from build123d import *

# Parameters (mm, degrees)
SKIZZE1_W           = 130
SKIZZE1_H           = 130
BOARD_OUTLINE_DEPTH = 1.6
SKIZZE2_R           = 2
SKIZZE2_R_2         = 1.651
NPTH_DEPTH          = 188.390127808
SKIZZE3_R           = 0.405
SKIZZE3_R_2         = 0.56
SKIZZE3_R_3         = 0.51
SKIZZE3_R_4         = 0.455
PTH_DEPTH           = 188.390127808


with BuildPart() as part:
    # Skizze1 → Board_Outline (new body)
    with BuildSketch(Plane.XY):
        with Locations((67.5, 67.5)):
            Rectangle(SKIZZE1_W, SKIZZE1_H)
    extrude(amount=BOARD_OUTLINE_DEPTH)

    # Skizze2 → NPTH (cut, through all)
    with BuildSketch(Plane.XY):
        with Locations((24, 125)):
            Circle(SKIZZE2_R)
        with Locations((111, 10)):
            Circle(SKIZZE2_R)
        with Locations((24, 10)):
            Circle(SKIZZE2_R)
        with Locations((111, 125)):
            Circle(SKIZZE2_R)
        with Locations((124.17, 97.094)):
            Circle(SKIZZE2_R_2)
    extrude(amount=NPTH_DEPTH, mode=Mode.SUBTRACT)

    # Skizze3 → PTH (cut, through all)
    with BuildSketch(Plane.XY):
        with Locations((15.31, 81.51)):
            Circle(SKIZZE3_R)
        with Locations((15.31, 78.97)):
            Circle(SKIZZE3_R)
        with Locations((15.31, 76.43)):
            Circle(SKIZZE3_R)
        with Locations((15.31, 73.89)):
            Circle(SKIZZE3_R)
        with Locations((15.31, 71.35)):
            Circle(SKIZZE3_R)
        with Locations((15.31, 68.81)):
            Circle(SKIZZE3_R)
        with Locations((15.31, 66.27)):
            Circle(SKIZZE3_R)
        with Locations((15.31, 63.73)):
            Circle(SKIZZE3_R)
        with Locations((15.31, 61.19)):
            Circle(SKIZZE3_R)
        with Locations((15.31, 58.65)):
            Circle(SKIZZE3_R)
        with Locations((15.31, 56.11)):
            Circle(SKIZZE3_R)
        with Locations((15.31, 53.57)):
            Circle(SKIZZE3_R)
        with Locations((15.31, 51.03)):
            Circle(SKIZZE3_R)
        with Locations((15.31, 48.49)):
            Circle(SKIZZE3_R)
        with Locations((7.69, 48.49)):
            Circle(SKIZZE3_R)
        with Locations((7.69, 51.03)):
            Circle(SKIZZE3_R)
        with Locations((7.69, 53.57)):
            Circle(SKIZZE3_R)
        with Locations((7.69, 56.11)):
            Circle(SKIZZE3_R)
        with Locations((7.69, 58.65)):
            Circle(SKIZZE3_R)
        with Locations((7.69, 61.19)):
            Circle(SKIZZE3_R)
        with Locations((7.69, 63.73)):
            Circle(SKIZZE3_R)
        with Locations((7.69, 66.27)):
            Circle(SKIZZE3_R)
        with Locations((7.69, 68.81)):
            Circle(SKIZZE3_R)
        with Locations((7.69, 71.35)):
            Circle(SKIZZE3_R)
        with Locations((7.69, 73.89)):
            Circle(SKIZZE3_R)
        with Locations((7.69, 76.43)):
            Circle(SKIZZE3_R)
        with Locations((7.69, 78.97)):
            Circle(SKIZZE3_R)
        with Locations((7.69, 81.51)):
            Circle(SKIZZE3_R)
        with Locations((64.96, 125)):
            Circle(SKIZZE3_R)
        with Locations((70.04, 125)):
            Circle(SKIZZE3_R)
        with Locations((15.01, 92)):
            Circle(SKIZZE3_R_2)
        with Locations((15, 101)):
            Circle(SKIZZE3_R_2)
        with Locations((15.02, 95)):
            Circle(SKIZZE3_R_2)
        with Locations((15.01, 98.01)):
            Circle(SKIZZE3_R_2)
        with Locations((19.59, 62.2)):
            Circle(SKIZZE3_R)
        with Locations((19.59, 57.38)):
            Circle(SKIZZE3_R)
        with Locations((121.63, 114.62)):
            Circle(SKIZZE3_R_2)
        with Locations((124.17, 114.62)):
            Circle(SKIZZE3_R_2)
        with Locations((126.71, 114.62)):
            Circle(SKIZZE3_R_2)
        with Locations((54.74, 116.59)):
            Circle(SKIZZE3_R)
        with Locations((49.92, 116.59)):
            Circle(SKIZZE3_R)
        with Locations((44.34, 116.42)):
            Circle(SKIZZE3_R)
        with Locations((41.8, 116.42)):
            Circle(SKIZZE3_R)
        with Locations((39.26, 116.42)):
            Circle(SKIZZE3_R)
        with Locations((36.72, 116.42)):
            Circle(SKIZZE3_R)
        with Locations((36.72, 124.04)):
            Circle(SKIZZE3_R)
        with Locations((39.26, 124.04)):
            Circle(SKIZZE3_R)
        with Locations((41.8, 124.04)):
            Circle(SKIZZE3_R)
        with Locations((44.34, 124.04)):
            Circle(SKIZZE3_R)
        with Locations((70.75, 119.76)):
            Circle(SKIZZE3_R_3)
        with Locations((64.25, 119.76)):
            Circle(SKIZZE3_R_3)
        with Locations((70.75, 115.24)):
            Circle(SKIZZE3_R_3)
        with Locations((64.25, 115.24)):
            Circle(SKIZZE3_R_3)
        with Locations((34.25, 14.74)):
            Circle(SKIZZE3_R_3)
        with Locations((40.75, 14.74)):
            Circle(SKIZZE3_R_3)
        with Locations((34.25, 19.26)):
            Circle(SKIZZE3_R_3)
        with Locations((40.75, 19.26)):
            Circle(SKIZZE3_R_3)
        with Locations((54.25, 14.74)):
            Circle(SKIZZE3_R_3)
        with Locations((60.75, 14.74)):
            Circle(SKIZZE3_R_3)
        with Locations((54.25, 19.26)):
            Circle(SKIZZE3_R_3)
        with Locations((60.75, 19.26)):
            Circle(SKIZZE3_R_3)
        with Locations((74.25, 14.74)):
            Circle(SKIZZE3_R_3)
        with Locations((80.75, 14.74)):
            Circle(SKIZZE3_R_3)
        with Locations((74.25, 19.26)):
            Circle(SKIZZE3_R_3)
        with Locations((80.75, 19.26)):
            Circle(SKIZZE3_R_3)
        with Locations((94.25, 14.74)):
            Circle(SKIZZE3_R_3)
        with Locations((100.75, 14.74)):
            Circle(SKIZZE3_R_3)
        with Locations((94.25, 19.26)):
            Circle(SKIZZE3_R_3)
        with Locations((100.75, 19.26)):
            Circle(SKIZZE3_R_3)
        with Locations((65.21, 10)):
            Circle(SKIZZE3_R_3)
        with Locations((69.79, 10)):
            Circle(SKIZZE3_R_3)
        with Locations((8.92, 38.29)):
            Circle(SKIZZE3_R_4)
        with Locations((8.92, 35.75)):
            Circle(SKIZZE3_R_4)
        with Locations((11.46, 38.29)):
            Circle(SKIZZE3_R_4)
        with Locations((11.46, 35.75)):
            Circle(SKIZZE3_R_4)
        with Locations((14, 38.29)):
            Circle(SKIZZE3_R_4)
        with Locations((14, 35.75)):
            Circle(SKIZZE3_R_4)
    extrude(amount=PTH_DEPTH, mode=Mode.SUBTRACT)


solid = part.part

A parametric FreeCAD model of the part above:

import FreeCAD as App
import Part
import Sketcher
from FreeCAD import Vector
Q = App.Units.Quantity

doc = App.newDocument("Part")
body = doc.addObject("PartDesign::Body", "Body")

sketch1 = doc.addObject("Sketcher::SketchObject", "Sketch")
body.addObject(sketch1)
sketch1.AttachmentSupport = (doc.XY_Plane, [""])
sketch1.MapMode = "FlatFace"
sketch1.addGeometry(Part.LineSegment(Vector(2, 132, 0), Vector(2, 2, 0)), False)
sketch1.addGeometry(Part.LineSegment(Vector(2, 2, 0), Vector(132, 2, 0)), False)
sketch1.addGeometry(Part.LineSegment(Vector(132, 2, 0), Vector(132, 132, 0)), False)
sketch1.addGeometry(Part.LineSegment(Vector(132, 132, 0), Vector(2, 132, 0)), False)
sketch1.addConstraint(Sketcher.Constraint("Coincident", 0, 2, 1, 1))
sketch1.addConstraint(Sketcher.Constraint("Coincident", 1, 2, 2, 1))
sketch1.addConstraint(Sketcher.Constraint("Coincident", 2, 2, 3, 1))
sketch1.addConstraint(Sketcher.Constraint("Coincident", 3, 2, 0, 1))
sketch1.addConstraint(Sketcher.Constraint("Vertical", 0))
sketch1.addConstraint(Sketcher.Constraint("Horizontal", 1))
sketch1.addConstraint(Sketcher.Constraint("Vertical", 2))
sketch1.addConstraint(Sketcher.Constraint("Horizontal", 3))
sketch1.addConstraint(Sketcher.Constraint("Equal", 3, 0))
sketch1.addConstraint(Sketcher.Constraint("DistanceX", 1, 1, 1, 2, Q("130 mm")))
sketch1.addConstraint(Sketcher.Constraint("DistanceX", -1, 1, 0, 2, Q("2.5 mm")))
sketch1.addConstraint(Sketcher.Constraint("DistanceY", -1, 1, 0, 2, Q("2.5 mm")))
pad1 = doc.addObject("PartDesign::Pad", "Pad")
body.addObject(pad1)
pad1.Profile = sketch1
pad1.Length = 1.6

sketch2 = doc.addObject("Sketcher::SketchObject", "Sketch001")
body.addObject(sketch2)
sketch2.AttachmentSupport = (doc.XY_Plane, [""])
sketch2.MapMode = "FlatFace"
sketch2.addGeometry(Part.Circle(Vector(24, 125, 0), Vector(0, 0, 1), 2), False)
sketch2.addGeometry(Part.Circle(Vector(111, 10, 0), Vector(0, 0, 1), 2), False)
sketch2.addGeometry(Part.Circle(Vector(24, 10, 0), Vector(0, 0, 1), 2), False)
sketch2.addGeometry(Part.Circle(Vector(111, 125, 0), Vector(0, 0, 1), 2), False)
sketch2.addGeometry(Part.Circle(Vector(124.2, 97.1, 0), Vector(0, 0, 1), 1.7), False)
sketch2.addConstraint(Sketcher.Constraint("Equal", 0, 1))
sketch2.addConstraint(Sketcher.Constraint("Equal", 1, 2))
sketch2.addConstraint(Sketcher.Constraint("Equal", 2, 3))
sketch2.addConstraint(Sketcher.Constraint("Horizontal", 1, 3, 2, 3))
sketch2.addConstraint(Sketcher.Constraint("Horizontal", 0, 3, 3, 3))
sketch2.addConstraint(Sketcher.Constraint("Vertical", 0, 3, 2, 3))
sketch2.addConstraint(Sketcher.Constraint("Vertical", 1, 3, 3, 3))
sketch2.addConstraint(Sketcher.Constraint("Diameter", 0, Q("4 mm")))
sketch2.addConstraint(Sketcher.Constraint("Diameter", 4, Q("3.302 mm")))
sketch2.addConstraint(Sketcher.Constraint("DistanceX", -1, 1, 0, 3, Q("24 mm")))
sketch2.addConstraint(Sketcher.Constraint("DistanceY", -1, 1, 0, 3, Q("125 mm")))
sketch2.addConstraint(Sketcher.Constraint("DistanceX", -1, 1, 1, 3, Q("111 mm")))
sketch2.addConstraint(Sketcher.Constraint("DistanceY", -1, 1, 1, 3, Q("10 mm")))
sketch2.addConstraint(Sketcher.Constraint("DistanceX", -1, 1, 4, 3, Q("124.17 mm")))
sketch2.addConstraint(Sketcher.Constraint("DistanceY", -1, 1, 4, 3, Q("97.094 mm")))
pocket1 = doc.addObject("PartDesign::Pocket", "Pocket")
body.addObject(pocket1)
pocket1.Profile = sketch2
pocket1.Type = "ThroughAll"
pocket1.Reversed = True

sketch3 = doc.addObject("Sketcher::SketchObject", "Sketch002")
body.addObject(sketch3)
sketch3.AttachmentSupport = (doc.XY_Plane, [""])
sketch3.MapMode = "FlatFace"
sketch3.addGeometry(Part.Circle(Vector(15.31, 81.51, 0), Vector(0, 0, 1), 0.41), False)
sketch3.addGeometry(Part.Circle(Vector(15.31, 78.97, 0), Vector(0, 0, 1), 0.41), False)
sketch3.addGeometry(Part.Circle(Vector(15.31, 76.43, 0), Vector(0, 0, 1), 0.41), False)
sketch3.addGeometry(Part.Circle(Vector(15.31, 73.89, 0), Vector(0, 0, 1), 0.41), False)
sketch3.addGeometry(Part.Circle(Vector(15.31, 71.35, 0), Vector(0, 0, 1), 0.41), False)
sketch3.addGeometry(Part.Circle(Vector(15.31, 68.81, 0), Vector(0, 0, 1), 0.41), False)
sketch3.addGeometry(Part.Circle(Vector(15.31, 66.27, 0), Vector(0, 0, 1), 0.41), False)
sketch3.addGeometry(Part.Circle(Vector(15.31, 63.73, 0), Vector(0, 0, 1), 0.41), False)
sketch3.addGeometry(Part.Circle(Vector(15.31, 61.19, 0), Vector(0, 0, 1), 0.41), False)
sketch3.addGeometry(Part.Circle(Vector(15.31, 58.65, 0), Vector(0, 0, 1), 0.41), False)
sketch3.addGeometry(Part.Circle(Vector(15.31, 56.11, 0), Vector(0, 0, 1), 0.41), False)
sketch3.addGeometry(Part.Circle(Vector(15.31, 53.57, 0), Vector(0, 0, 1), 0.41), False)
sketch3.addGeometry(Part.Circle(Vector(15.31, 51.03, 0), Vector(0, 0, 1), 0.41), False)
sketch3.addGeometry(Part.Circle(Vector(15.31, 48.49, 0), Vector(0, 0, 1), 0.41), False)
sketch3.addGeometry(Part.Circle(Vector(7.69, 48.49, 0), Vector(0, 0, 1), 0.41), False)
sketch3.addGeometry(Part.Circle(Vector(7.69, 51.03, 0), Vector(0, 0, 1), 0.41), False)
sketch3.addGeometry(Part.Circle(Vector(7.69, 53.57, 0), Vector(0, 0, 1), 0.41), False)
sketch3.addGeometry(Part.Circle(Vector(7.69, 56.11, 0), Vector(0, 0, 1), 0.41), False)
sketch3.addGeometry(Part.Circle(Vector(7.69, 58.65, 0), Vector(0, 0, 1), 0.41), False)
sketch3.addGeometry(Part.Circle(Vector(7.69, 61.19, 0), Vector(0, 0, 1), 0.41), False)
sketch3.addGeometry(Part.Circle(Vector(7.69, 63.73, 0), Vector(0, 0, 1), 0.41), False)
sketch3.addGeometry(Part.Circle(Vector(7.69, 66.27, 0), Vector(0, 0, 1), 0.41), False)
sketch3.addGeometry(Part.Circle(Vector(7.69, 68.81, 0), Vector(0, 0, 1), 0.41), False)
sketch3.addGeometry(Part.Circle(Vector(7.69, 71.35, 0), Vector(0, 0, 1), 0.41), False)
sketch3.addGeometry(Part.Circle(Vector(7.69, 73.89, 0), Vector(0, 0, 1), 0.41), False)
sketch3.addGeometry(Part.Circle(Vector(7.69, 76.43, 0), Vector(0, 0, 1), 0.41), False)
sketch3.addGeometry(Part.Circle(Vector(7.69, 78.97, 0), Vector(0, 0, 1), 0.41), False)
sketch3.addGeometry(Part.Circle(Vector(7.69, 81.51, 0), Vector(0, 0, 1), 0.41), False)
sketch3.addGeometry(Part.Circle(Vector(64.96, 125, 0), Vector(0, 0, 1), 0.41), False)
sketch3.addGeometry(Part.Circle(Vector(70.04, 125, 0), Vector(0, 0, 1), 0.41), False)
sketch3.addGeometry(Part.Circle(Vector(15.01, 92, 0), Vector(0, 0, 1), 0.56), False)
sketch3.addGeometry(Part.Circle(Vector(15, 101, 0), Vector(0, 0, 1), 0.56), False)
sketch3.addGeometry(Part.Circle(Vector(15.02, 95, 0), Vector(0, 0, 1), 0.56), False)
sketch3.addGeometry(Part.Circle(Vector(15.01, 98.01, 0), Vector(0, 0, 1), 0.56), False)
sketch3.addGeometry(Part.Circle(Vector(19.59, 62.2, 0), Vector(0, 0, 1), 0.41), False)
sketch3.addGeometry(Part.Circle(Vector(19.59, 57.38, 0), Vector(0, 0, 1), 0.41), False)
sketch3.addGeometry(Part.Circle(Vector(121.63, 114.62, 0), Vector(0, 0, 1), 0.56), False)
sketch3.addGeometry(Part.Circle(Vector(124.17, 114.62, 0), Vector(0, 0, 1), 0.56), False)
sketch3.addGeometry(Part.Circle(Vector(126.71, 114.62, 0), Vector(0, 0, 1), 0.56), False)
sketch3.addGeometry(Part.Circle(Vector(54.74, 116.59, 0), Vector(0, 0, 1), 0.41), False)
sketch3.addGeometry(Part.Circle(Vector(49.92, 116.59, 0), Vector(0, 0, 1), 0.41), False)
sketch3.addGeometry(Part.Circle(Vector(44.34, 116.42, 0), Vector(0, 0, 1), 0.41), False)
sketch3.addGeometry(Part.Circle(Vector(41.8, 116.42, 0), Vector(0, 0, 1), 0.41), False)
sketch3.addGeometry(Part.Circle(Vector(39.26, 116.42, 0), Vector(0, 0, 1), 0.41), False)
sketch3.addGeometry(Part.Circle(Vector(36.72, 116.42, 0), Vector(0, 0, 1), 0.41), False)
sketch3.addGeometry(Part.Circle(Vector(36.72, 124.04, 0), Vector(0, 0, 1), 0.41), False)
sketch3.addGeometry(Part.Circle(Vector(39.26, 124.04, 0), Vector(0, 0, 1), 0.41), False)
sketch3.addGeometry(Part.Circle(Vector(41.8, 124.04, 0), Vector(0, 0, 1), 0.41), False)
sketch3.addGeometry(Part.Circle(Vector(44.34, 124.04, 0), Vector(0, 0, 1), 0.41), False)
sketch3.addGeometry(Part.Circle(Vector(70.75, 119.76, 0), Vector(0, 0, 1), 0.51), False)
sketch3.addGeometry(Part.Circle(Vector(64.25, 119.76, 0), Vector(0, 0, 1), 0.51), False)
sketch3.addGeometry(Part.Circle(Vector(70.75, 115.24, 0), Vector(0, 0, 1), 0.51), False)
sketch3.addGeometry(Part.Circle(Vector(64.25, 115.24, 0), Vector(0, 0, 1), 0.51), False)
sketch3.addGeometry(Part.Circle(Vector(34.25, 14.74, 0), Vector(0, 0, 1), 0.51), False)
sketch3.addGeometry(Part.Circle(Vector(40.75, 14.74, 0), Vector(0, 0, 1), 0.51), False)
sketch3.addGeometry(Part.Circle(Vector(34.25, 19.26, 0), Vector(0, 0, 1), 0.51), False)
sketch3.addGeometry(Part.Circle(Vector(40.75, 19.26, 0), Vector(0, 0, 1), 0.51), False)
sketch3.addGeometry(Part.Circle(Vector(54.25, 14.74, 0), Vector(0, 0, 1), 0.51), False)
sketch3.addGeometry(Part.Circle(Vector(60.75, 14.74, 0), Vector(0, 0, 1), 0.51), False)
sketch3.addGeometry(Part.Circle(Vector(54.25, 19.26, 0), Vector(0, 0, 1), 0.51), False)
sketch3.addGeometry(Part.Circle(Vector(60.75, 19.26, 0), Vector(0, 0, 1), 0.51), False)
sketch3.addGeometry(Part.Circle(Vector(74.25, 14.74, 0), Vector(0, 0, 1), 0.51), False)
sketch3.addGeometry(Part.Circle(Vector(80.75, 14.74, 0), Vector(0, 0, 1), 0.51), False)
sketch3.addGeometry(Part.Circle(Vector(74.25, 19.26, 0), Vector(0, 0, 1), 0.51), False)
sketch3.addGeometry(Part.Circle(Vector(80.75, 19.26, 0), Vector(0, 0, 1), 0.51), False)
sketch3.addGeometry(Part.Circle(Vector(94.25, 14.74, 0), Vector(0, 0, 1), 0.51), False)
sketch3.addGeometry(Part.Circle(Vector(100.75, 14.74, 0), Vector(0, 0, 1), 0.51), False)
sketch3.addGeometry(Part.Circle(Vector(94.25, 19.26, 0), Vector(0, 0, 1), 0.51), False)
sketch3.addGeometry(Part.Circle(Vector(100.75, 19.26, 0), Vector(0, 0, 1), 0.51), False)
sketch3.addGeometry(Part.Circle(Vector(65.21, 10, 0), Vector(0, 0, 1), 0.51), False)
sketch3.addGeometry(Part.Circle(Vector(69.79, 10, 0), Vector(0, 0, 1), 0.51), False)
sketch3.addGeometry(Part.Circle(Vector(8.92, 38.29, 0), Vector(0, 0, 1), 0.46), False)
sketch3.addGeometry(Part.Circle(Vector(8.92, 35.75, 0), Vector(0, 0, 1), 0.46), False)
sketch3.addGeometry(Part.Circle(Vector(11.46, 38.29, 0), Vector(0, 0, 1), 0.46), False)
sketch3.addGeometry(Part.Circle(Vector(11.46, 35.75, 0), Vector(0, 0, 1), 0.46), False)
sketch3.addGeometry(Part.Circle(Vector(14, 38.29, 0), Vector(0, 0, 1), 0.46), False)
sketch3.addGeometry(Part.Circle(Vector(14, 35.75, 0), Vector(0, 0, 1), 0.46), False)
sketch3.addConstraint(Sketcher.Constraint("Equal", 0, 1))
sketch3.addConstraint(Sketcher.Constraint("Equal", 1, 2))
sketch3.addConstraint(Sketcher.Constraint("Equal", 2, 3))
sketch3.addConstraint(Sketcher.Constraint("Equal", 3, 4))
sketch3.addConstraint(Sketcher.Constraint("Equal", 4, 5))
sketch3.addConstraint(Sketcher.Constraint("Equal", 5, 6))
sketch3.addConstraint(Sketcher.Constraint("Equal", 6, 7))
sketch3.addConstraint(Sketcher.Constraint("Equal", 7, 8))
sketch3.addConstraint(Sketcher.Constraint("Equal", 8, 9))
sketch3.addConstraint(Sketcher.Constraint("Equal", 9, 10))
sketch3.addConstraint(Sketcher.Constraint("Equal", 10, 11))
sketch3.addConstraint(Sketcher.Constraint("Equal", 11, 12))
sketch3.addConstraint(Sketcher.Constraint("Equal", 12, 13))
sketch3.addConstraint(Sketcher.Constraint("Equal", 13, 14))
sketch3.addConstraint(Sketcher.Constraint("Equal", 14, 15))
sketch3.addConstraint(Sketcher.Constraint("Equal", 15, 16))
sketch3.addConstraint(Sketcher.Constraint("Equal", 16, 17))
sketch3.addConstraint(Sketcher.Constraint("Equal", 17, 18))
sketch3.addConstraint(Sketcher.Constraint("Equal", 18, 19))
sketch3.addConstraint(Sketcher.Constraint("Equal", 19, 20))
sketch3.addConstraint(Sketcher.Constraint("Equal", 20, 21))
sketch3.addConstraint(Sketcher.Constraint("Equal", 21, 22))
sketch3.addConstraint(Sketcher.Constraint("Equal", 22, 23))
sketch3.addConstraint(Sketcher.Constraint("Equal", 23, 24))
sketch3.addConstraint(Sketcher.Constraint("Equal", 24, 25))
sketch3.addConstraint(Sketcher.Constraint("Equal", 25, 26))
sketch3.addConstraint(Sketcher.Constraint("Equal", 26, 27))
sketch3.addConstraint(Sketcher.Constraint("Equal", 27, 28))
sketch3.addConstraint(Sketcher.Constraint("Equal", 28, 29))
sketch3.addConstraint(Sketcher.Constraint("Equal", 30, 31))
sketch3.addConstraint(Sketcher.Constraint("Equal", 31, 32))
sketch3.addConstraint(Sketcher.Constraint("Equal", 32, 33))
sketch3.addConstraint(Sketcher.Constraint("Equal", 29, 34))
sketch3.addConstraint(Sketcher.Constraint("Equal", 34, 35))
sketch3.addConstraint(Sketcher.Constraint("Equal", 33, 36))
sketch3.addConstraint(Sketcher.Constraint("Equal", 36, 37))
sketch3.addConstraint(Sketcher.Constraint("Equal", 37, 38))
sketch3.addConstraint(Sketcher.Constraint("Equal", 35, 39))
sketch3.addConstraint(Sketcher.Constraint("Equal", 39, 40))
sketch3.addConstraint(Sketcher.Constraint("Equal", 40, 41))
sketch3.addConstraint(Sketcher.Constraint("Equal", 41, 42))
sketch3.addConstraint(Sketcher.Constraint("Equal", 42, 43))
sketch3.addConstraint(Sketcher.Constraint("Equal", 43, 44))
sketch3.addConstraint(Sketcher.Constraint("Equal", 44, 45))
sketch3.addConstraint(Sketcher.Constraint("Equal", 45, 46))
sketch3.addConstraint(Sketcher.Constraint("Equal", 46, 47))
sketch3.addConstraint(Sketcher.Constraint("Equal", 47, 48))
sketch3.addConstraint(Sketcher.Constraint("Equal", 49, 50))
sketch3.addConstraint(Sketcher.Constraint("Equal", 50, 51))
sketch3.addConstraint(Sketcher.Constraint("Equal", 51, 52))
sketch3.addConstraint(Sketcher.Constraint("Equal", 52, 53))
sketch3.addConstraint(Sketcher.Constraint("Equal", 53, 54))
sketch3.addConstraint(Sketcher.Constraint("Equal", 54, 55))
sketch3.addConstraint(Sketcher.Constraint("Equal", 55, 56))
sketch3.addConstraint(Sketcher.Constraint("Equal", 56, 57))
sketch3.addConstraint(Sketcher.Constraint("Equal", 57, 58))
sketch3.addConstraint(Sketcher.Constraint("Equal", 58, 59))
sketch3.addConstraint(Sketcher.Constraint("Equal", 59, 60))
sketch3.addConstraint(Sketcher.Constraint("Equal", 60, 61))
sketch3.addConstraint(Sketcher.Constraint("Equal", 61, 62))
sketch3.addConstraint(Sketcher.Constraint("Equal", 62, 63))
sketch3.addConstraint(Sketcher.Constraint("Equal", 63, 64))
sketch3.addConstraint(Sketcher.Constraint("Equal", 64, 65))
sketch3.addConstraint(Sketcher.Constraint("Equal", 65, 66))
sketch3.addConstraint(Sketcher.Constraint("Equal", 66, 67))
sketch3.addConstraint(Sketcher.Constraint("Equal", 67, 68))
sketch3.addConstraint(Sketcher.Constraint("Equal", 68, 69))
sketch3.addConstraint(Sketcher.Constraint("Equal", 69, 70))
sketch3.addConstraint(Sketcher.Constraint("Equal", 71, 72))
sketch3.addConstraint(Sketcher.Constraint("Equal", 72, 73))
sketch3.addConstraint(Sketcher.Constraint("Equal", 73, 74))
sketch3.addConstraint(Sketcher.Constraint("Equal", 74, 75))
sketch3.addConstraint(Sketcher.Constraint("Equal", 75, 76))
sketch3.addConstraint(Sketcher.Constraint("Horizontal", 13, 3, 14, 3))
sketch3.addConstraint(Sketcher.Constraint("Horizontal", 12, 3, 15, 3))
sketch3.addConstraint(Sketcher.Constraint("Horizontal", 11, 3, 16, 3))
sketch3.addConstraint(Sketcher.Constraint("Horizontal", 10, 3, 17, 3))
sketch3.addConstraint(Sketcher.Constraint("Horizontal", 9, 3, 18, 3))
sketch3.addConstraint(Sketcher.Constraint("Horizontal", 8, 3, 19, 3))
sketch3.addConstraint(Sketcher.Constraint("Horizontal", 7, 3, 20, 3))
sketch3.addConstraint(Sketcher.Constraint("Horizontal", 6, 3, 21, 3))
sketch3.addConstraint(Sketcher.Constraint("Horizontal", 5, 3, 22, 3))
sketch3.addConstraint(Sketcher.Constraint("Horizontal", 4, 3, 23, 3))
sketch3.addConstraint(Sketcher.Constraint("Horizontal", 3, 3, 24, 3))
sketch3.addConstraint(Sketcher.Constraint("Horizontal", 2, 3, 25, 3))
sketch3.addConstraint(Sketcher.Constraint("Horizontal", 1, 3, 26, 3))
sketch3.addConstraint(Sketcher.Constraint("Horizontal", 0, 3, 27, 3))
sketch3.addConstraint(Sketcher.Constraint("Horizontal", 28, 3, 29, 3))
sketch3.addConstraint(Sketcher.Constraint("Horizontal", 36, 3, 37, 3))
sketch3.addConstraint(Sketcher.Constraint("Horizontal", 37, 3, 38, 3))
sketch3.addConstraint(Sketcher.Constraint("Horizontal", 39, 3, 40, 3))
sketch3.addConstraint(Sketcher.Constraint("Horizontal", 41, 3, 42, 3))
sketch3.addConstraint(Sketcher.Constraint("Horizontal", 42, 3, 43, 3))
sketch3.addConstraint(Sketcher.Constraint("Horizontal", 43, 3, 44, 3))
sketch3.addConstraint(Sketcher.Constraint("Horizontal", 45, 3, 46, 3))
sketch3.addConstraint(Sketcher.Constraint("Horizontal", 46, 3, 47, 3))
sketch3.addConstraint(Sketcher.Constraint("Horizontal", 47, 3, 48, 3))
sketch3.addConstraint(Sketcher.Constraint("Horizontal", 49, 3, 50, 3))
sketch3.addConstraint(Sketcher.Constraint("Horizontal", 51, 3, 52, 3))
sketch3.addConstraint(Sketcher.Constraint("Horizontal", 53, 3, 54, 3))
sketch3.addConstraint(Sketcher.Constraint("Horizontal", 55, 3, 56, 3))
sketch3.addConstraint(Sketcher.Constraint("Horizontal", 54, 3, 57, 3))
sketch3.addConstraint(Sketcher.Constraint("Horizontal", 57, 3, 58, 3))
sketch3.addConstraint(Sketcher.Constraint("Horizontal", 56, 3, 59, 3))
sketch3.addConstraint(Sketcher.Constraint("Horizontal", 59, 3, 60, 3))
sketch3.addConstraint(Sketcher.Constraint("Horizontal", 58, 3, 61, 3))
sketch3.addConstraint(Sketcher.Constraint("Horizontal", 61, 3, 62, 3))
sketch3.addConstraint(Sketcher.Constraint("Horizontal", 60, 3, 63, 3))
sketch3.addConstraint(Sketcher.Constraint("Horizontal", 63, 3, 64, 3))
sketch3.addConstraint(Sketcher.Constraint("Horizontal", 62, 3, 65, 3))
sketch3.addConstraint(Sketcher.Constraint("Horizontal", 65, 3, 66, 3))
sketch3.addConstraint(Sketcher.Constraint("Horizontal", 64, 3, 67, 3))
sketch3.addConstraint(Sketcher.Constraint("Horizontal", 67, 3, 68, 3))
sketch3.addConstraint(Sketcher.Constraint("Horizontal", 69, 3, 70, 3))
sketch3.addConstraint(Sketcher.Constraint("Horizontal", 71, 3, 73, 3))
sketch3.addConstraint(Sketcher.Constraint("Horizontal", 72, 3, 74, 3))
sketch3.addConstraint(Sketcher.Constraint("Horizontal", 73, 3, 75, 3))
sketch3.addConstraint(Sketcher.Constraint("Horizontal", 74, 3, 76, 3))
sketch3.addConstraint(Sketcher.Constraint("Vertical", 0, 3, 1, 3))
sketch3.addConstraint(Sketcher.Constraint("Vertical", 1, 3, 2, 3))
sketch3.addConstraint(Sketcher.Constraint("Vertical", 2, 3, 3, 3))
sketch3.addConstraint(Sketcher.Constraint("Vertical", 3, 3, 4, 3))
sketch3.addConstraint(Sketcher.Constraint("Vertical", 4, 3, 5, 3))
sketch3.addConstraint(Sketcher.Constraint("Vertical", 5, 3, 6, 3))
sketch3.addConstraint(Sketcher.Constraint("Vertical", 6, 3, 7, 3))
sketch3.addConstraint(Sketcher.Constraint("Vertical", 7, 3, 8, 3))
sketch3.addConstraint(Sketcher.Constraint("Vertical", 8, 3, 9, 3))
sketch3.addConstraint(Sketcher.Constraint("Vertical", 9, 3, 10, 3))
sketch3.addConstraint(Sketcher.Constraint("Vertical", 10, 3, 11, 3))
sketch3.addConstraint(Sketcher.Constraint("Vertical", 11, 3, 12, 3))
sketch3.addConstraint(Sketcher.Constraint("Vertical", 12, 3, 13, 3))
sketch3.addConstraint(Sketcher.Constraint("Vertical", 14, 3, 15, 3))
sketch3.addConstraint(Sketcher.Constraint("Vertical", 15, 3, 16, 3))
sketch3.addConstraint(Sketcher.Constraint("Vertical", 16, 3, 17, 3))
sketch3.addConstraint(Sketcher.Constraint("Vertical", 17, 3, 18, 3))
sketch3.addConstraint(Sketcher.Constraint("Vertical", 18, 3, 19, 3))
sketch3.addConstraint(Sketcher.Constraint("Vertical", 19, 3, 20, 3))
sketch3.addConstraint(Sketcher.Constraint("Vertical", 20, 3, 21, 3))
sketch3.addConstraint(Sketcher.Constraint("Vertical", 21, 3, 22, 3))
sketch3.addConstraint(Sketcher.Constraint("Vertical", 22, 3, 23, 3))
sketch3.addConstraint(Sketcher.Constraint("Vertical", 23, 3, 24, 3))
sketch3.addConstraint(Sketcher.Constraint("Vertical", 24, 3, 25, 3))
sketch3.addConstraint(Sketcher.Constraint("Vertical", 25, 3, 26, 3))
sketch3.addConstraint(Sketcher.Constraint("Vertical", 26, 3, 27, 3))
sketch3.addConstraint(Sketcher.Constraint("Vertical", 30, 3, 33, 3))
sketch3.addConstraint(Sketcher.Constraint("Vertical", 34, 3, 35, 3))
sketch3.addConstraint(Sketcher.Constraint("Vertical", 44, 3, 45, 3))
sketch3.addConstraint(Sketcher.Constraint("Vertical", 43, 3, 46, 3))
sketch3.addConstraint(Sketcher.Constraint("Vertical", 42, 3, 47, 3))
sketch3.addConstraint(Sketcher.Constraint("Vertical", 41, 3, 48, 3))
sketch3.addConstraint(Sketcher.Constraint("Vertical", 49, 3, 51, 3))
sketch3.addConstraint(Sketcher.Constraint("Vertical", 50, 3, 52, 3))
sketch3.addConstraint(Sketcher.Constraint("Vertical", 53, 3, 55, 3))
sketch3.addConstraint(Sketcher.Constraint("Vertical", 54, 3, 56, 3))
sketch3.addConstraint(Sketcher.Constraint("Vertical", 57, 3, 59, 3))
sketch3.addConstraint(Sketcher.Constraint("Vertical", 58, 3, 60, 3))
sketch3.addConstraint(Sketcher.Constraint("Vertical", 61, 3, 63, 3))
sketch3.addConstraint(Sketcher.Constraint("Vertical", 62, 3, 64, 3))
sketch3.addConstraint(Sketcher.Constraint("Vertical", 65, 3, 67, 3))
sketch3.addConstraint(Sketcher.Constraint("Vertical", 66, 3, 68, 3))
sketch3.addConstraint(Sketcher.Constraint("Vertical", 71, 3, 72, 3))
sketch3.addConstraint(Sketcher.Constraint("Vertical", 73, 3, 74, 3))
sketch3.addConstraint(Sketcher.Constraint("Vertical", 75, 3, 76, 3))
sketch3.addConstraint(Sketcher.Constraint("Diameter", 0, Q("0.81 mm")))
sketch3.addConstraint(Sketcher.Constraint("Diameter", 30, Q("1.12 mm")))
sketch3.addConstraint(Sketcher.Constraint("Diameter", 49, Q("1.02 mm")))
sketch3.addConstraint(Sketcher.Constraint("Diameter", 71, Q("0.91 mm")))
sketch3.addConstraint(Sketcher.Constraint("DistanceY", -1, 1, 28, 3, Q("125 mm")))
sketch3.addConstraint(Sketcher.Constraint("DistanceY", -1, 1, 30, 3, Q("92 mm")))
sketch3.addConstraint(Sketcher.Constraint("DistanceX", -1, 1, 31, 3, Q("15 mm")))
sketch3.addConstraint(Sketcher.Constraint("DistanceY", -1, 1, 31, 3, Q("101 mm")))
sketch3.addConstraint(Sketcher.Constraint("DistanceY", -1, 1, 32, 3, Q("95 mm")))
sketch3.addConstraint(Sketcher.Constraint("DistanceY", -1, 1, 69, 3, Q("10 mm")))
sketch3.addConstraint(Sketcher.Constraint("DistanceX", -1, 1, 75, 3, Q("14 mm")))
sketch3.addConstraint(Sketcher.Constraint("DistanceY", -1, 1, 34, 3, Q("62.2 mm")))
sketch3.addConstraint(Sketcher.Constraint("DistanceX", -1, 1, 42, 3, Q("41.8 mm")))
sketch3.addConstraint(Sketcher.Constraint("DistanceX", -1, 1, 0, 3, Q("15.31 mm")))
sketch3.addConstraint(Sketcher.Constraint("DistanceY", -1, 1, 0, 3, Q("81.51 mm")))
sketch3.addConstraint(Sketcher.Constraint("DistanceY", -1, 1, 1, 3, Q("78.97 mm")))
sketch3.addConstraint(Sketcher.Constraint("DistanceY", -1, 1, 2, 3, Q("76.43 mm")))
sketch3.addConstraint(Sketcher.Constraint("DistanceY", -1, 1, 3, 3, Q("73.89 mm")))
sketch3.addConstraint(Sketcher.Constraint("DistanceY", -1, 1, 4, 3, Q("71.35 mm")))
sketch3.addConstraint(Sketcher.Constraint("DistanceY", -1, 1, 5, 3, Q("68.81 mm")))
sketch3.addConstraint(Sketcher.Constraint("DistanceY", -1, 1, 6, 3, Q("66.27 mm")))
sketch3.addConstraint(Sketcher.Constraint("DistanceY", -1, 1, 7, 3, Q("63.73 mm")))
sketch3.addConstraint(Sketcher.Constraint("DistanceY", -1, 1, 8, 3, Q("61.19 mm")))
sketch3.addConstraint(Sketcher.Constraint("DistanceY", -1, 1, 9, 3, Q("58.65 mm")))
sketch3.addConstraint(Sketcher.Constraint("DistanceY", -1, 1, 10, 3, Q("56.11 mm")))
sketch3.addConstraint(Sketcher.Constraint("DistanceY", -1, 1, 11, 3, Q("53.57 mm")))
sketch3.addConstraint(Sketcher.Constraint("DistanceY", -1, 1, 12, 3, Q("51.03 mm")))
sketch3.addConstraint(Sketcher.Constraint("DistanceY", -1, 1, 13, 3, Q("48.49 mm")))
sketch3.addConstraint(Sketcher.Constraint("DistanceX", -1, 1, 14, 3, Q("7.69 mm")))
sketch3.addConstraint(Sketcher.Constraint("DistanceX", -1, 1, 28, 3, Q("64.96 mm")))
sketch3.addConstraint(Sketcher.Constraint("DistanceX", -1, 1, 29, 3, Q("70.04 mm")))
sketch3.addConstraint(Sketcher.Constraint("DistanceX", -1, 1, 30, 3, Q("15.01 mm")))
sketch3.addConstraint(Sketcher.Constraint("DistanceX", -1, 1, 32, 3, Q("15.02 mm")))
sketch3.addConstraint(Sketcher.Constraint("DistanceY", -1, 1, 33, 3, Q("98.01 mm")))
sketch3.addConstraint(Sketcher.Constraint("DistanceX", -1, 1, 34, 3, Q("19.59 mm")))
sketch3.addConstraint(Sketcher.Constraint("DistanceY", -1, 1, 35, 3, Q("57.38 mm")))
sketch3.addConstraint(Sketcher.Constraint("DistanceX", -1, 1, 36, 3, Q("121.63 mm")))
sketch3.addConstraint(Sketcher.Constraint("DistanceY", -1, 1, 36, 3, Q("114.62 mm")))
sketch3.addConstraint(Sketcher.Constraint("DistanceX", -1, 1, 37, 3, Q("124.17 mm")))
sketch3.addConstraint(Sketcher.Constraint("DistanceX", -1, 1, 38, 3, Q("126.71 mm")))
sketch3.addConstraint(Sketcher.Constraint("DistanceX", -1, 1, 39, 3, Q("54.74 mm")))
sketch3.addConstraint(Sketcher.Constraint("DistanceY", -1, 1, 39, 3, Q("116.59 mm")))
sketch3.addConstraint(Sketcher.Constraint("DistanceX", -1, 1, 40, 3, Q("49.92 mm")))
sketch3.addConstraint(Sketcher.Constraint("DistanceX", -1, 1, 41, 3, Q("44.34 mm")))
sketch3.addConstraint(Sketcher.Constraint("DistanceY", -1, 1, 41, 3, Q("116.42 mm")))
sketch3.addConstraint(Sketcher.Constraint("DistanceX", -1, 1, 43, 3, Q("39.26 mm")))
sketch3.addConstraint(Sketcher.Constraint("DistanceX", -1, 1, 44, 3, Q("36.72 mm")))
sketch3.addConstraint(Sketcher.Constraint("DistanceY", -1, 1, 45, 3, Q("124.04 mm")))
sketch3.addConstraint(Sketcher.Constraint("DistanceX", -1, 1, 49, 3, Q("70.75 mm")))
sketch3.addConstraint(Sketcher.Constraint("DistanceY", -1, 1, 49, 3, Q("119.76 mm")))
sketch3.addConstraint(Sketcher.Constraint("DistanceX", -1, 1, 50, 3, Q("64.25 mm")))
sketch3.addConstraint(Sketcher.Constraint("DistanceY", -1, 1, 51, 3, Q("115.24 mm")))
sketch3.addConstraint(Sketcher.Constraint("DistanceX", -1, 1, 53, 3, Q("34.25 mm")))
sketch3.addConstraint(Sketcher.Constraint("DistanceY", -1, 1, 53, 3, Q("14.74 mm")))
sketch3.addConstraint(Sketcher.Constraint("DistanceX", -1, 1, 54, 3, Q("40.75 mm")))
sketch3.addConstraint(Sketcher.Constraint("DistanceY", -1, 1, 55, 3, Q("19.26 mm")))
sketch3.addConstraint(Sketcher.Constraint("DistanceX", -1, 1, 57, 3, Q("54.25 mm")))
sketch3.addConstraint(Sketcher.Constraint("DistanceX", -1, 1, 58, 3, Q("60.75 mm")))
sketch3.addConstraint(Sketcher.Constraint("DistanceX", -1, 1, 61, 3, Q("74.25 mm")))
sketch3.addConstraint(Sketcher.Constraint("DistanceX", -1, 1, 62, 3, Q("80.75 mm")))
sketch3.addConstraint(Sketcher.Constraint("DistanceX", -1, 1, 65, 3, Q("94.25 mm")))
sketch3.addConstraint(Sketcher.Constraint("DistanceX", -1, 1, 66, 3, Q("100.75 mm")))
sketch3.addConstraint(Sketcher.Constraint("DistanceX", -1, 1, 69, 3, Q("65.21 mm")))
sketch3.addConstraint(Sketcher.Constraint("DistanceX", -1, 1, 70, 3, Q("69.79 mm")))
sketch3.addConstraint(Sketcher.Constraint("DistanceX", -1, 1, 71, 3, Q("8.92 mm")))
sketch3.addConstraint(Sketcher.Constraint("DistanceY", -1, 1, 71, 3, Q("38.29 mm")))
sketch3.addConstraint(Sketcher.Constraint("DistanceY", -1, 1, 72, 3, Q("35.75 mm")))
sketch3.addConstraint(Sketcher.Constraint("DistanceX", -1, 1, 73, 3, Q("11.46 mm")))
pocket2 = doc.addObject("PartDesign::Pocket", "Pocket001")
body.addObject(pocket2)
pocket2.Profile = sketch3
pocket2.Type = "ThroughAll"
pocket2.Reversed = True

doc.recompute()
